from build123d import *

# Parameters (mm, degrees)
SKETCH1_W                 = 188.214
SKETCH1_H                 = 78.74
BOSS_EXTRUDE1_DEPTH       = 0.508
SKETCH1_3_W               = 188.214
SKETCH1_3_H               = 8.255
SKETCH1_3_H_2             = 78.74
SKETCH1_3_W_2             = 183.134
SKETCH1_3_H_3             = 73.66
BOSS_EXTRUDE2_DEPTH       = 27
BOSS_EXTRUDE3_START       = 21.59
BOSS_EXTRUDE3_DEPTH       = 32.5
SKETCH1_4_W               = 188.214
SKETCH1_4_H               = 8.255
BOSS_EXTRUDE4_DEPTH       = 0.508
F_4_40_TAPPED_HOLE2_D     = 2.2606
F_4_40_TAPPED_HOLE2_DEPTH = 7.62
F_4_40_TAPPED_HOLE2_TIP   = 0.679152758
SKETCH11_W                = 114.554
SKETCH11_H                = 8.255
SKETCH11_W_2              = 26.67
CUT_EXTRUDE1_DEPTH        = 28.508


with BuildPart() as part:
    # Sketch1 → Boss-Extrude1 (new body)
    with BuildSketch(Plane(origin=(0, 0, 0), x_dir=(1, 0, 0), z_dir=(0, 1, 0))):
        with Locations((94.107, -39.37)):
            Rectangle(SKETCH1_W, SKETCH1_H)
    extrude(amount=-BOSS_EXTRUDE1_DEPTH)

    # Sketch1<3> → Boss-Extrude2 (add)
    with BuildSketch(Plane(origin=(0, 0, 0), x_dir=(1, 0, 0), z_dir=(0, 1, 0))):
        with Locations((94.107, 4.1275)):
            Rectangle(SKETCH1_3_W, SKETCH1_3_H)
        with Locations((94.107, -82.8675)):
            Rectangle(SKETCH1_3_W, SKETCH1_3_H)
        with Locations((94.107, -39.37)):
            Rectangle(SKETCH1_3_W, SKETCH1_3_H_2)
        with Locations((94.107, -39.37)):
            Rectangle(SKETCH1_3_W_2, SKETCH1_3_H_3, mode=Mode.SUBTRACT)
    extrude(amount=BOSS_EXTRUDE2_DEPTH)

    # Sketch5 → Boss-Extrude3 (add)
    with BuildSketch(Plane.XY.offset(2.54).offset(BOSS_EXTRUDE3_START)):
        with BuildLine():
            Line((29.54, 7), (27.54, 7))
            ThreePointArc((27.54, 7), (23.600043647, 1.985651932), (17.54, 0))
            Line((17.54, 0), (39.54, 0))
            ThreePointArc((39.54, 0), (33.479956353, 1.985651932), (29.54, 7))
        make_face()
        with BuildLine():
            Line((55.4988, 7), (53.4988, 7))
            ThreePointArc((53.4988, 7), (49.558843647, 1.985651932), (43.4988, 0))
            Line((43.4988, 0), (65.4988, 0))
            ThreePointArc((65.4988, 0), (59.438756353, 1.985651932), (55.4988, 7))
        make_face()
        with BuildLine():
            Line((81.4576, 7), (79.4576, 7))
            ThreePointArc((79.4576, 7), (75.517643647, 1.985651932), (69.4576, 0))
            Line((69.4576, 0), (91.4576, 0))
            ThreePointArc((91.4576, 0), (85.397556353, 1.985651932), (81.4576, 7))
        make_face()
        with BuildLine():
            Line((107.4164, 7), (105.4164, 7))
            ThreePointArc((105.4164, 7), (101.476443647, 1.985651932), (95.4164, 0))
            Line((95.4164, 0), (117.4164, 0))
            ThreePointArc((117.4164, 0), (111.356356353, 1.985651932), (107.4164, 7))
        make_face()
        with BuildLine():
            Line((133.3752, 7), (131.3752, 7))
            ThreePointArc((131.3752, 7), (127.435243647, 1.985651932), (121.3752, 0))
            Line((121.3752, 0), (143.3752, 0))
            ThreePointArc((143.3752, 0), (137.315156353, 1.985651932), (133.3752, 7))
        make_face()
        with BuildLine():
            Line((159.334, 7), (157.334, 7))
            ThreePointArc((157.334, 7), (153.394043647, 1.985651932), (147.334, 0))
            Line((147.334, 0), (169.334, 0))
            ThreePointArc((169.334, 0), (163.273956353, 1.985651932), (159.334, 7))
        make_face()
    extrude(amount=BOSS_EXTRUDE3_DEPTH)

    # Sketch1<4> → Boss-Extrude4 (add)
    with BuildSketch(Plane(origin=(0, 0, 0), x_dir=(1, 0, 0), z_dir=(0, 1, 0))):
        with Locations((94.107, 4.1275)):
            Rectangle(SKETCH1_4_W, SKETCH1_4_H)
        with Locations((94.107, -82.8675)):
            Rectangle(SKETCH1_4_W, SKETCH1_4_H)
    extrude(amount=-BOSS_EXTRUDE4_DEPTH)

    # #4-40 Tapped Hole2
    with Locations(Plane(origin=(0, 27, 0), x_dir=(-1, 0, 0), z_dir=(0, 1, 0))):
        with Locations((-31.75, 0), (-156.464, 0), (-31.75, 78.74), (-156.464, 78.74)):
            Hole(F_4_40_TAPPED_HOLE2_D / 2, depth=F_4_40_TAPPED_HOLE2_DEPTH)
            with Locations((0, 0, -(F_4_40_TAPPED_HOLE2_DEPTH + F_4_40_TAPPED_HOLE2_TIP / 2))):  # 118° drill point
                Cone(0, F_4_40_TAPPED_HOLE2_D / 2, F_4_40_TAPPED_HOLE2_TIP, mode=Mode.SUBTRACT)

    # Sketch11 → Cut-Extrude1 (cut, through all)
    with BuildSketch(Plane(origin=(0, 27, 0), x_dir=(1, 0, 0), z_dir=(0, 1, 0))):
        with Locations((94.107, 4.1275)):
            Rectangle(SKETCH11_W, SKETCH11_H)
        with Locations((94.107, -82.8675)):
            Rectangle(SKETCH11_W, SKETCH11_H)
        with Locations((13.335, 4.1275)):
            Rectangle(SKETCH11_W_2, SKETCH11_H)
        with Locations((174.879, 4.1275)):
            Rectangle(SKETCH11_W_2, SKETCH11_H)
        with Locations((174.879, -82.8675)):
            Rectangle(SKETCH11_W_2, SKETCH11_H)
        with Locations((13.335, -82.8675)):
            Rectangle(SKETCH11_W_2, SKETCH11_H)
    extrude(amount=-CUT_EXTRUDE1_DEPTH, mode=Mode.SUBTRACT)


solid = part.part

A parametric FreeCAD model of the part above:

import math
import FreeCAD as App
import Part
import Sketcher
Q = App.Units.Quantity


def add_polygon(sketch, points):
    """Adds a closed chain of lines whose ends are joined by coincident constraints."""
    first, n = sketch.GeometryCount, len(points)
    for a, b in zip(points, points[1:] + points[:1]):
        sketch.addGeometry(Part.LineSegment(App.Vector(*a, 0), App.Vector(*b, 0)), False)
    for i in range(n):
        sketch.addConstraint(Sketcher.Constraint("Coincident", first + i, 2, first + (i + 1) % n, 1))

doc = App.newDocument("Part")
params = doc.addObject("Spreadsheet::Sheet", "Params")
for row, (alias, value) in enumerate([
    ("sketch1_height", "3.1 in"),
    ("sketch1_width", "7.41 in"),
    ("pad1_length", "0.02 in"),
    ("sketch2_height", "2.9 in"),
    ("sketch2_width", "7.41 in"),
    ("sketch2_width2", "7.21 in"),
    ("sketch2_height2", "3.75 in"),
    ("pad2_length", "27 mm"),
    ("pad3_length", "32.5 mm"),
    ("sketch4_width", "7.41 in"),
    ("sketch4_height", "0.325 in"),
    ("pad4_length", "0.02 in"),
    ("sketch5_diameter", "0.089 in"),
    ("hole_diameter", "0.089 in"),
    ("hole_depth", "0.3 in"),
    ("sketch6_width", "4.51 in"),
    ("sketch6_width2", "1.05 in"),
    ("sketch6_height", "0.325 in"),
], start=1):
    params.set(f"A{row}", alias)
    params.set(f"B{row}", "=" + value)
    params.setAlias(f"B{row}", alias)

body = doc.addObject("PartDesign::Body", "Body")

# Sketch on XZ plane
sketch1 = body.newObject("Sketcher::SketchObject", "Sketch")
sketch1.AttachmentSupport = (doc.getObject("XZ_Plane"), [""])
sketch1.MapMode = "FlatFace"
add_polygon(sketch1, [(0, 0), (0, 79), (188, 79), (188, 0)])  # lines 0-3
sketch1.addConstraint([
    Sketcher.Constraint("Vertical", 0),
    Sketcher.Constraint("Horizontal", 1),
    Sketcher.Constraint("Vertical", 2),
    Sketcher.Constraint("Horizontal", 3),
    Sketcher.Constraint("Coincident", 3, 2, -1, 1),
    Sketcher.Constraint("DistanceY", 0, 1, 0, 2, Q("3.1 in")),
    Sketcher.Constraint("DistanceX", 1, 1, 1, 2, Q("7.41 in")),
])
sketch1.setExpression("Constraints[9]", "Params.sketch1_height")
sketch1.setExpression("Constraints[10]", "Params.sketch1_width")
pad1 = body.newObject("PartDesign::Pad", "Pad")
pad1.Profile = sketch1
pad1.setExpression("Length", "Params.pad1_length")

# Sketch on XZ plane
sketch2 = body.newObject("Sketcher::SketchObject", "Sketch001")
sketch2.AttachmentSupport = (doc.getObject("XZ_Plane"), [""])
sketch2.MapMode = "FlatFace"
add_polygon(sketch2, [(0, -8), (0, 87), (188, 87), (188, -8)])  # lines 0-3
add_polygon(sketch2, [(186, 76), (3, 76), (3, 3), (186, 3)])  # lines 4-7
sketch2.addConstraint([
    Sketcher.Constraint("Vertical", 0),
    Sketcher.Constraint("Horizontal", 1),
    Sketcher.Constraint("Vertical", 2),
    Sketcher.Constraint("Horizontal", 3),
    Sketcher.Constraint("Horizontal", 4),
    Sketcher.Constraint("Vertical", 5),
    Sketcher.Constraint("Horizontal", 6),
    Sketcher.Constraint("Vertical", 7),
    Sketcher.Constraint("PointOnObject", 0, 2, -2),
    Sketcher.Constraint("DistanceY", 5, 2, 5, 1, Q("2.9 in")),
    Sketcher.Constraint("DistanceY", -1, 1, 4, 2, Q("3 in")),
    Sketcher.Constraint("DistanceX", 1, 1, 1, 2, Q("7.41 in")),
    Sketcher.Constraint("DistanceX", 4, 2, 4, 1, Q("7.21 in")),
    Sketcher.Constraint("DistanceY", 0, 1, 0, 2, Q("3.75 in")),
    Sketcher.Constraint("DistanceX", -1, 1, 4, 2, Q("0.1 in")),
    Sketcher.Constraint("DistanceY", -1, 1, 0, 2, Q("3.425 in")),
])
sketch2.setExpression("Constraints[17]", "Params.sketch2_height")
sketch2.setExpression("Constraints[19]", "Params.sketch2_width")
sketch2.setExpression("Constraints[20]", "Params.sketch2_width2")
sketch2.setExpression("Constraints[21]", "Params.sketch2_height2")
pad2 = body.newObject("PartDesign::Pad", "Pad001")
pad2.Profile = sketch2
pad2.setExpression("Length", "Params.pad2_length")
pad2.Reversed = True

# Sketch on XY plane
sketch3 = body.newObject("Sketcher::SketchObject", "Sketch002")
sketch3.AttachmentSupport = (doc.getObject("XY_Plane"), [""])
sketch3.MapMode = "FlatFace"
sketch3.AttachmentOffset = App.Placement(App.Vector(0, 0, 0.95 * 25.4), App.Rotation())
sketch3.addGeometry([
    Part.LineSegment(App.Vector(29.5, 7, 0), App.Vector(27.5, 7, 0)),  # 0
    Part.ArcOfCircle(Part.Circle(App.Vector(17.3, 11, 0), App.Vector(0, 0, 1), 11), math.radians(-89), math.radians(-21)),  # 1
    Part.LineSegment(App.Vector(17.5, 0, 0), App.Vector(39.5, 0, 0)),  # 2
    Part.ArcOfCircle(Part.Circle(App.Vector(39.8, 11, 0), App.Vector(0, 0, 1), 11), math.radians(-159), math.radians(-91)),  # 3
    Part.LineSegment(App.Vector(55.5, 7, 0), App.Vector(53.5, 7, 0)),  # 4
    Part.ArcOfCircle(Part.Circle(App.Vector(43.3, 11, 0), App.Vector(0, 0, 1), 11), math.radians(-89), math.radians(-21)),  # 5
    Part.LineSegment(App.Vector(43.5, 0, 0), App.Vector(65.5, 0, 0)),  # 6
    Part.ArcOfCircle(Part.Circle(App.Vector(65.7, 11, 0), App.Vector(0, 0, 1), 11), math.radians(-159), math.radians(-91)),  # 7
    Part.LineSegment(App.Vector(81.5, 7, 0), App.Vector(79.5, 7, 0)),  # 8
    Part.ArcOfCircle(Part.Circle(App.Vector(69.2, 11, 0), App.Vector(0, 0, 1), 11), math.radians(-89), math.radians(-21)),  # 9
    Part.LineSegment(App.Vector(69.5, 0, 0), App.Vector(91.5, 0, 0)),  # 10
    Part.ArcOfCircle(Part.Circle(App.Vector(91.7, 11, 0), App.Vector(0, 0, 1), 11), math.radians(-159), math.radians(-91)),  # 11
    Part.LineSegment(App.Vector(107.4, 7, 0), App.Vector(105.4, 7, 0)),  # 12
    Part.ArcOfCircle(Part.Circle(App.Vector(95.2, 11, 0), App.Vector(0, 0, 1), 11), math.radians(-89), math.radians(-21)),  # 13
    Part.LineSegment(App.Vector(95.4, 0, 0), App.Vector(117.4, 0, 0)),  # 14
    Part.ArcOfCircle(Part.Circle(App.Vector(117.7, 11, 0), App.Vector(0, 0, 1), 11), math.radians(-159), math.radians(-91)),  # 15
    Part.LineSegment(App.Vector(133.4, 7, 0), App.Vector(131.4, 7, 0)),  # 16
    Part.ArcOfCircle(Part.Circle(App.Vector(121.1, 11, 0), App.Vector(0, 0, 1), 11), math.radians(-89), math.radians(-21)),  # 17
    Part.LineSegment(App.Vector(121.4, 0, 0), App.Vector(143.4, 0, 0)),  # 18
    Part.ArcOfCircle(Part.Circle(App.Vector(143.6, 11, 0), App.Vector(0, 0, 1), 11), math.radians(-159), math.radians(-91)),  # 19
    Part.LineSegment(App.Vector(159.3, 7, 0), App.Vector(157.3, 7, 0)),  # 20
    Part.ArcOfCircle(Part.Circle(App.Vector(147.1, 11, 0), App.Vector(0, 0, 1), 11), math.radians(-89), math.radians(-21)),  # 21
    Part.LineSegment(App.Vector(147.3, 0, 0), App.Vector(169.3, 0, 0)),  # 22
    Part.ArcOfCircle(Part.Circle(App.Vector(169.6, 11, 0), App.Vector(0, 0, 1), 11), math.radians(-159), math.radians(-91)),  # 23
], False)
sketch3.addConstraint([
    Sketcher.Constraint("Coincident", 0, 2, 1, 2),
    Sketcher.Constraint("Coincident", 1, 1, 2, 1),
    Sketcher.Constraint("Coincident", 2, 2, 3, 2),
    Sketcher.Constraint("Coincident", 3, 1, 0, 1),
    Sketcher.Constraint("Coincident", 4, 2, 5, 2),
    Sketcher.Constraint("Coincident", 5, 1, 6, 1),
    Sketcher.Constraint("Coincident", 6, 2, 7, 2),
    Sketcher.Constraint("Coincident", 7, 1, 4, 1),
    Sketcher.Constraint("Coincident", 8, 2, 9, 2),
    Sketcher.Constraint("Coincident", 9, 1, 10, 1),
    Sketcher.Constraint("Coincident", 10, 2, 11, 2),
    Sketcher.Constraint("Coincident", 11, 1, 8, 1),
    Sketcher.Constraint("Coincident", 12, 2, 13, 2),
    Sketcher.Constraint("Coincident", 13, 1, 14, 1),
    Sketcher.Constraint("Coincident", 14, 2, 15, 2),
    Sketcher.Constraint("Coincident", 15, 1, 12, 1),
    Sketcher.Constraint("Coincident", 16, 2, 17, 2),
    Sketcher.Constraint("Coincident", 17, 1, 18, 1),
    Sketcher.Constraint("Coincident", 18, 2, 19, 2),
    Sketcher.Constraint("Coincident", 19, 1, 16, 1),
    Sketcher.Constraint("Coincident", 20, 2, 21, 2),
    Sketcher.Constraint("Coincident", 21, 1, 22, 1),
    Sketcher.Constraint("Coincident", 22, 2, 23, 2),
    Sketcher.Constraint("Coincident", 23, 1, 20, 1),
    Sketcher.Constraint("Horizontal", 0),
    Sketcher.Constraint("Horizontal", 2),
    Sketcher.Constraint("Horizontal", 4),
    Sketcher.Constraint("Horizontal", 6),
    Sketcher.Constraint("Horizontal", 8),
    Sketcher.Constraint("Horizontal", 10),
    Sketcher.Constraint("Horizontal", 12),
    Sketcher.Constraint("Horizontal", 14),
    Sketcher.Constraint("Horizontal", 16),
    Sketcher.Constraint("Horizontal", 18),
    Sketcher.Constraint("Horizontal", 20),
    Sketcher.Constraint("Horizontal", 22),
    Sketcher.Constraint("Equal", 1, 3),
    Sketcher.Constraint("Equal", 3, 5),
    Sketcher.Constraint("Equal", 5, 7),
    Sketcher.Constraint("Equal", 7, 9),
    Sketcher.Constraint("Equal", 9, 11),
    Sketcher.Constraint("Equal", 11, 13),
    Sketcher.Constraint("Equal", 13, 15),
    Sketcher.Constraint("Equal", 15, 17),
    Sketcher.Constraint("Equal", 17, 19),
    Sketcher.Constraint("Equal", 19, 21),
    Sketcher.Constraint("Equal", 21, 23),
    Sketcher.Constraint("PointOnObject", 1, 1, -1),
    Sketcher.Constraint("PointOnObject", 5, 1, -1),
    Sketcher.Constraint("PointOnObject", 9, 1, -1),
    Sketcher.Constraint("PointOnObject", 13, 1, -1),
    Sketcher.Constraint("PointOnObject", 17, 1, -1),
    Sketcher.Constraint("PointOnObject", 21, 1, -1),
    Sketcher.Constraint("Horizontal", 1, 3, 3, 3),
    Sketcher.Constraint("Horizontal", 3, 3, 5, 3),
    Sketcher.Constraint("Horizontal", 5, 3, 7, 3),
    Sketcher.Constraint("Horizontal", 7, 3, 9, 3),
    Sketcher.Constraint("Horizontal", 9, 3, 11, 3),
    Sketcher.Constraint("Horizontal", 11, 3, 13, 3),
    Sketcher.Constraint("Horizontal", 13, 3, 15, 3),
    Sketcher.Constraint("Horizontal", 15, 3, 17, 3),
    Sketcher.Constraint("Horizontal", 17, 3, 19, 3),
    Sketcher.Constraint("Horizontal", 19, 3, 21, 3),
    Sketcher.Constraint("Horizontal", 21, 3, 23, 3),
    Sketcher.Constraint("Horizontal", 3, 1, 4, 2),
    Sketcher.Constraint("Horizontal", 7, 1, 8, 2),
    Sketcher.Constraint("Horizontal", 11, 1, 12, 2),
    Sketcher.Constraint("Horizontal", 15, 1, 16, 2),
    Sketcher.Constraint("Horizontal", 19, 1, 20, 2),
    Sketcher.Constraint("Equal", 0, 4),
    Sketcher.Constraint("Equal", 4, 8),
    Sketcher.Constraint("Equal", 8, 12),
    Sketcher.Constraint("Equal", 12, 16),
    Sketcher.Constraint("Equal", 16, 20),
    Sketcher.Constraint("Radius", 1, Q("11 mm")),
    Sketcher.Constraint("DistanceX", 1, 3, 5, 3, Q("1.022 in")),
    Sketcher.Constraint("DistanceX", 5, 3, 9, 3, Q("1.022 in")),
    Sketcher.Constraint("DistanceX", 9, 3, 13, 3, Q("1.022 in")),
    Sketcher.Constraint("DistanceX", 13, 3, 17, 3, Q("1.022 in")),
    Sketcher.Constraint("DistanceX", 17, 3, 21, 3, Q("1.022 in")),
    Sketcher.Constraint("DistanceX", 0, 2, 0, 1, Q("2 mm")),
    Sketcher.Constraint("DistanceX", 2, 1, 2, 2, Q("22 mm")),
    Sketcher.Constraint("DistanceX", -1, 1, 0, 2, Q("27.54 mm")),
    Sketcher.Constraint("DistanceY", -1, 1, 0, 2, Q("7 mm")),
])
pad3 = body.newObject("PartDesign::Pad", "Pad002")
pad3.Profile = sketch3
pad3.setExpression("Length", "Params.pad3_length")

# Sketch on XZ plane
sketch4 = body.newObject("Sketcher::SketchObject", "Sketch003")
sketch4.AttachmentSupport = (doc.getObject("XZ_Plane"), [""])
sketch4.MapMode = "FlatFace"
add_polygon(sketch4, [(0, -8), (0, 0), (188, 0), (188, -8)])  # lines 0-3
add_polygon(sketch4, [(0, 79), (0, 87), (188, 87), (188, 79)])  # lines 4-7
sketch4.addConstraint([
    Sketcher.Constraint("Vertical", 0),
    Sketcher.Constraint("Horizontal", 1),
    Sketcher.Constraint("Vertical", 2),
    Sketcher.Constraint("Horizontal", 3),
    Sketcher.Constraint("Vertical", 4),
    Sketcher.Constraint("Horizontal", 5),
    Sketcher.Constraint("Vertical", 6),
    Sketcher.Constraint("Horizontal", 7),
    Sketcher.Constraint("Coincident", 0, 2, -1, 1),
    Sketcher.Constraint("PointOnObject", 4, 2, -2),
    Sketcher.Constraint("Vertical", 2, 2, 5, 2),
    Sketcher.Constraint("Equal", 2, 4),
    Sketcher.Constraint("DistanceX", 1, 1, 1, 2, Q("7.41 in")),
    Sketcher.Constraint("DistanceY", -1, 1, 6, 2, Q("3.1 in")),
    Sketcher.Constraint("DistanceY", 0, 1, 0, 2, Q("0.325 in")),
])
sketch4.setExpression("Constraints[20]", "Params.sketch4_width")
sketch4.setExpression("Constraints[22]", "Params.sketch4_height")
pad4 = body.newObject("PartDesign::Pad", "Pad003")
pad4.Profile = sketch4
pad4.setExpression("Length", "Params.pad4_length")

# Sketch on XZ plane
sketch5 = body.newObject("Sketcher::SketchObject", "Sketch004")
sketch5.AttachmentSupport = (doc.getObject("XZ_Plane"), [""])
sketch5.MapMode = "FlatFace"
sketch5.AttachmentOffset = App.Placement(App.Vector(0, 0, -27), App.Rotation())
sketch5.addGeometry([
    Part.Circle(App.Vector(31.8, 0, 0), App.Vector(0, 0, 1), 1.1),
    Part.Circle(App.Vector(156.5, 0, 0), App.Vector(0, 0, 1), 1.1),
    Part.Circle(App.Vector(31.8, 78.7, 0), App.Vector(0, 0, 1), 1.1),
    Part.Circle(App.Vector(156.5, 78.7, 0), App.Vector(0, 0, 1), 1.1),
], False)
sketch5.addConstraint([
    Sketcher.Constraint("Equal", 0, 1),
    Sketcher.Constraint("Equal", 1, 2),
    Sketcher.Constraint("Equal", 2, 3),
    Sketcher.Constraint("PointOnObject", 0, 3, -1),
    Sketcher.Constraint("PointOnObject", 1, 3, -1),
    Sketcher.Constraint("Horizontal", 2, 3, 3, 3),
    Sketcher.Constraint("Vertical", 0, 3, 2, 3),
    Sketcher.Constraint("Vertical", 1, 3, 3, 3),
    Sketcher.Constraint("Diameter", 0, Q("0.089 in")),
    Sketcher.Constraint("DistanceY", -1, 1, 2, 3, Q("3.1 in")),
    Sketcher.Constraint("DistanceX", -1, 1, 0, 3, Q("1.25 in")),
    Sketcher.Constraint("DistanceX", -1, 1, 1, 3, Q("6.16 in")),
])
sketch5.setExpression("Constraints[8]", "Params.sketch5_diameter")
doc.recompute()
hole = body.newObject("PartDesign::Hole", "Hole")
hole.Profile = sketch5
hole.ThreadType = "None"
hole.setExpression("Diameter", "Params.hole_diameter")
hole.DepthType = "Dimension"
hole.setExpression("Depth", "Params.hole_depth")
hole.DrillPoint = "Angled"
hole.DrillPointAngle = 118
hole.Reversed = True

# Sketch on XZ plane
sketch6 = body.newObject("Sketcher::SketchObject", "Sketch005")
sketch6.AttachmentSupport = (doc.getObject("XZ_Plane"), [""])
sketch6.MapMode = "FlatFace"
sketch6.AttachmentOffset = App.Placement(App.Vector(0, 0, -27), App.Rotation())
add_polygon(sketch6, [(37, -8), (37, 0), (151, 0), (151, -8)])  # lines 0-3
add_polygon(sketch6, [(37, 79), (37, 87), (151, 87), (151, 79)])  # lines 4-7
add_polygon(sketch6, [(0, -8), (0, 0), (27, 0), (27, -8)])  # lines 8-11
add_polygon(sketch6, [(162, -8), (162, 0), (188, 0), (188, -8)])  # lines 12-15
add_polygon(sketch6, [(162, 79), (162, 87), (188, 87), (188, 79)])  # lines 16-19
add_polygon(sketch6, [(0, 79), (0, 87), (27, 87), (27, 79)])  # lines 20-23
sketch6.addConstraint([
    Sketcher.Constraint("Vertical", 0),
    Sketcher.Constraint("Horizontal", 1),
    Sketcher.Constraint("Vertical", 2),
    Sketcher.Constraint("Horizontal", 3),
    Sketcher.Constraint("Vertical", 4),
    Sketcher.Constraint("Horizontal", 5),
    Sketcher.Constraint("Vertical", 6),
    Sketcher.Constraint("Horizontal", 7),
    Sketcher.Constraint("Vertical", 8),
    Sketcher.Constraint("Horizontal", 9),
    Sketcher.Constraint("Vertical", 10),
    Sketcher.Constraint("Horizontal", 11),
    Sketcher.Constraint("Vertical", 12),
    Sketcher.Constraint("Horizontal", 13),
    Sketcher.Constraint("Vertical", 14),
    Sketcher.Constraint("Horizontal", 15),
    Sketcher.Constraint("Vertical", 16),
    Sketcher.Constraint("Horizontal", 17),
    Sketcher.Constraint("Vertical", 18),
    Sketcher.Constraint("Horizontal", 19),
    Sketcher.Constraint("Vertical", 20),
    Sketcher.Constraint("Horizontal", 21),
    Sketcher.Constraint("Vertical", 22),
    Sketcher.Constraint("Horizontal", 23),
    Sketcher.Constraint("Coincident", 8, 2, -1, 1),
    Sketcher.Constraint("PointOnObject", 0, 2, -1),
    Sketcher.Constraint("PointOnObject", 12, 2, -1),
    Sketcher.Constraint("PointOnObject", 20, 2, -2),
    Sketcher.Constraint("Horizontal", 3, 2, 10, 2),
    Sketcher.Constraint("Horizontal", 11, 2, 14, 2),
    Sketcher.Constraint("Horizontal", 5, 2, 16, 2),
    Sketcher.Constraint("Horizontal", 7, 2, 18, 2),
    Sketcher.Constraint("Horizontal", 17, 2, 20, 2),
    Sketcher.Constraint("Horizontal", 19, 2, 22, 2),
    Sketcher.Constraint("Vertical", 3, 2, 4, 2),
    Sketcher.Constraint("Vertical", 2, 2, 5, 2),
    Sketcher.Constraint("Vertical", 15, 2, 16, 2),
    Sketcher.Constraint("Vertical", 14, 2, 17, 2),
    Sketcher.Constraint("Vertical", 10, 2, 21, 2),
    Sketcher.Constraint("Equal", 11, 13),
    Sketcher.Constraint("Equal", 2, 4),
    Sketcher.Constraint("DistanceX", 1, 1, 1, 2, Q("4.51 in")),
    Sketcher.Constraint("DistanceX", 9, 1, 9, 2, Q("1.05 in")),
    Sketcher.Constraint("DistanceY", -1, 1, 6, 2, Q("3.1 in")),
    Sketcher.Constraint("DistanceX", 9, 2, 0, 2, Q("0.4 in")),
    Sketcher.Constraint("DistanceX", 1, 2, 12, 2, Q("0.4 in")),
    Sketcher.Constraint("DistanceY", 0, 1, 0, 2, Q("0.325 in")),
])
sketch6.setExpression("Constraints[65]", "Params.sketch6_width")
sketch6.setExpression("Constraints[66]", "Params.sketch6_width2")
sketch6.setExpression("Constraints[70]", "Params.sketch6_height")
pocket1 = body.newObject("PartDesign::Pocket", "Pocket")
pocket1.Profile = sketch6
pocket1.Type = "ThroughAll"
pocket1.Reversed = True

doc.recompute()
